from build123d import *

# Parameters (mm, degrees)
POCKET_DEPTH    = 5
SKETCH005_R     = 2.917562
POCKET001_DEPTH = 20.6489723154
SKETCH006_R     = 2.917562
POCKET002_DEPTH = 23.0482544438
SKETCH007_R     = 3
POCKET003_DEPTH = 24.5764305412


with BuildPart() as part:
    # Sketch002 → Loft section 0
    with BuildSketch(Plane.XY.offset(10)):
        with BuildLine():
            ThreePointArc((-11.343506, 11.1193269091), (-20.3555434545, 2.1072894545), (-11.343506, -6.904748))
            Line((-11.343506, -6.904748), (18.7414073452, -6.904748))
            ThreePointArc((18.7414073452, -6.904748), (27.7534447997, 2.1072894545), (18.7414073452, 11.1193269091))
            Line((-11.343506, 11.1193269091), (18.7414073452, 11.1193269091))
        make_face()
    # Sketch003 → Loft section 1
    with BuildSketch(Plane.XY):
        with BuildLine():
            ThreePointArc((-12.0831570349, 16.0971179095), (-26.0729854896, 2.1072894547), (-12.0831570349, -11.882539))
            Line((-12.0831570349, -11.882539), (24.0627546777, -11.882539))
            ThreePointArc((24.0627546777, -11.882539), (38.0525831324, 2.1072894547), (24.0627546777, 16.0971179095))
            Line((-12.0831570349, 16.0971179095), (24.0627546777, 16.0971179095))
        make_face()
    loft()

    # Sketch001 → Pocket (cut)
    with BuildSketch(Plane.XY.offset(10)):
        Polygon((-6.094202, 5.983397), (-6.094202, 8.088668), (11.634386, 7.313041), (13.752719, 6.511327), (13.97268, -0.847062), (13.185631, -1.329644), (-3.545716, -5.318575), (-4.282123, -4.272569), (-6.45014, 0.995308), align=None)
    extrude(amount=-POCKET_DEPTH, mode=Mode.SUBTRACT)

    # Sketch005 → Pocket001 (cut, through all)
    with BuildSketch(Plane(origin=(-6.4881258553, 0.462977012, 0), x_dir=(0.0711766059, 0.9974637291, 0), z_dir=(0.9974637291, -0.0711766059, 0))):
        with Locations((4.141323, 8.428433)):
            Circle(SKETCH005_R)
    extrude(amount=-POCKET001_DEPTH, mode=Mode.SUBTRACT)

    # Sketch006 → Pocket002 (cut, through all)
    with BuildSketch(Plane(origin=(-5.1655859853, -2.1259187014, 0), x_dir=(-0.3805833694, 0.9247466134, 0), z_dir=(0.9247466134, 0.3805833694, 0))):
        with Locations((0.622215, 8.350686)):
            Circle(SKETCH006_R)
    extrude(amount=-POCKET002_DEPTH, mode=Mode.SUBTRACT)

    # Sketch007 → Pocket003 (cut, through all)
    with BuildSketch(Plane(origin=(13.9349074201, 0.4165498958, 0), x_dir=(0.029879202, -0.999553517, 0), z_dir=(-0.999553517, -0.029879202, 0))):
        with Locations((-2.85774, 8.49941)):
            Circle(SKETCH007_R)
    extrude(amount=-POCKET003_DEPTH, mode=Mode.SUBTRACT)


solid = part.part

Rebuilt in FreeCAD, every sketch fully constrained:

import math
import FreeCAD as App
import Part
import Sketcher
Q = App.Units.Quantity

doc = App.newDocument("Part")
body = doc.addObject("PartDesign::Body", "Body")

# Sketch on XY plane
sketch1 = doc.addObject("Sketcher::SketchObject", "Sketch")
body.addObject(sketch1)
sketch1.AttachmentSupport = (doc.XY_Plane, [""])
sketch1.MapMode = "FlatFace"
sketch1.AttachmentOffset = App.Placement(App.Vector(0, 0, 10), App.Rotation())
sketch1.addGeometry([
    Part.ArcOfCircle(Part.Circle(App.Vector(-11.343506, 2.107289, 0), App.Vector(0, 0, 1), 9.012037), math.radians(90), math.radians(270)),
    Part.LineSegment(App.Vector(-11.343506, -6.904748, 0), App.Vector(18.741407, -6.904748, 0)),
    Part.ArcOfCircle(Part.Circle(App.Vector(18.741407, 2.107289, 0), App.Vector(0, 0, 1), 9.012037), math.radians(-90), math.radians(90)),
    Part.LineSegment(App.Vector(18.741407, 11.119327, 0), App.Vector(-11.343506, 11.119327, 0)),
], False)
sketch1.addConstraint([
    Sketcher.Constraint("Tangent", 0, 2, 1, 1),
    Sketcher.Constraint("Tangent", 1, 2, 2, 1),
    Sketcher.Constraint("Tangent", 2, 2, 3, 1),
    Sketcher.Constraint("Tangent", 3, 2, 0, 1),
    Sketcher.Constraint("Horizontal", 1),
    Sketcher.Constraint("Horizontal", 3),
    Sketcher.Constraint("Radius", 0, Q("9.012037 mm")),
    Sketcher.Constraint("DistanceX", 1, 1, 1, 2, Q("30.084913 mm")),
    Sketcher.Constraint("DistanceY", -1, 1, 0, 3, Q("2.107289 mm")),
    Sketcher.Constraint("DistanceX", 0, 3, -1, 1, Q("11.343506 mm")),
])

# Sketch on XY plane
sketch2 = doc.addObject("Sketcher::SketchObject", "Sketch001")
body.addObject(sketch2)
sketch2.AttachmentSupport = (doc.XY_Plane, [""])
sketch2.MapMode = "FlatFace"
sketch2.addGeometry([
    Part.ArcOfCircle(Part.Circle(App.Vector(-12.083157, 2.107289, 0), App.Vector(0, 0, 1), 13.989828), math.radians(90), math.radians(270)),
    Part.LineSegment(App.Vector(-12.083157, -11.882539, 0), App.Vector(24.062755, -11.882539, 0)),
    Part.ArcOfCircle(Part.Circle(App.Vector(24.062755, 2.107289, 0), App.Vector(0, 0, 1), 13.989828), math.radians(-90), math.radians(90)),
    Part.LineSegment(App.Vector(24.062755, 16.097118, 0), App.Vector(-12.083157, 16.097118, 0)),
], False)
sketch2.addConstraint([
    Sketcher.Constraint("Tangent", 0, 2, 1, 1),
    Sketcher.Constraint("Tangent", 1, 2, 2, 1),
    Sketcher.Constraint("Tangent", 2, 2, 3, 1),
    Sketcher.Constraint("Tangent", 3, 2, 0, 1),
    Sketcher.Constraint("Horizontal", 1),
    Sketcher.Constraint("Horizontal", 3),
    Sketcher.Constraint("Radius", 0, Q("13.989828 mm")),
    Sketcher.Constraint("DistanceX", 1, 1, 1, 2, Q("36.145912 mm")),
    Sketcher.Constraint("DistanceY", -1, 1, 0, 3, Q("2.107289 mm")),
    Sketcher.Constraint("DistanceX", 0, 3, -1, 1, Q("12.083157 mm")),
])

additiveloft = doc.addObject("PartDesign::AdditiveLoft", "AdditiveLoft")
body.addObject(additiveloft)
additiveloft.Profile = sketch1
additiveloft.Sections = [sketch2]

# Sketch on XY plane
sketch3 = doc.addObject("Sketcher::SketchObject", "Sketch002")
body.addObject(sketch3)
sketch3.AttachmentSupport = (doc.XY_Plane, [""])
sketch3.MapMode = "FlatFace"
sketch3.AttachmentOffset = App.Placement(App.Vector(0, 0, 10), App.Rotation())
sketch3.addGeometry([
    Part.LineSegment(App.Vector(-6.094202, 8.088668, 0), App.Vector(-6.094202, 5.983397, 0)),  # 0
    Part.LineSegment(App.Vector(-6.094202, 5.983397, 0), App.Vector(-6.45014, 0.995308, 0)),  # 1
    Part.LineSegment(App.Vector(-6.45014, 0.995308, 0), App.Vector(-4.282123, -4.272569, 0)),  # 2
    Part.LineSegment(App.Vector(-4.282123, -4.272569, 0), App.Vector(-3.545716, -5.318575, 0)),  # 3
    Part.LineSegment(App.Vector(-3.545716, -5.318575, 0), App.Vector(13.185631, -1.329644, 0)),  # 4
    Part.LineSegment(App.Vector(13.185631, -1.329644, 0), App.Vector(13.97268, -0.847062, 0)),  # 5
    Part.LineSegment(App.Vector(13.97268, -0.847062, 0), App.Vector(13.752719, 6.511327, 0)),  # 6
    Part.LineSegment(App.Vector(13.752719, 6.511327, 0), App.Vector(11.634386, 7.313041, 0)),  # 7
    Part.LineSegment(App.Vector(11.634386, 7.313041, 0), App.Vector(-6.094202, 8.088668, 0)),  # 8
], False)
sketch3.addConstraint([
    Sketcher.Constraint("Coincident", 0, 2, 1, 1),
    Sketcher.Constraint("Coincident", 1, 2, 2, 1),
    Sketcher.Constraint("Coincident", 2, 2, 3, 1),
    Sketcher.Constraint("Coincident", 3, 2, 4, 1),
    Sketcher.Constraint("Coincident", 4, 2, 5, 1),
    Sketcher.Constraint("Coincident", 5, 2, 6, 1),
    Sketcher.Constraint("Coincident", 6, 2, 7, 1),
    Sketcher.Constraint("Coincident", 7, 2, 8, 1),
    Sketcher.Constraint("Coincident", 8, 2, 0, 1),
    Sketcher.Constraint("Vertical", 0),
    Sketcher.Constraint("DistanceY", 0, 2, 0, 1, Q("2.105271 mm")),
    Sketcher.Constraint("Distance", 5, Q("0.923218 mm")),
    Sketcher.Constraint("DistanceX", 1, 2, -1, 1, Q("6.45014 mm")),
    Sketcher.Constraint("DistanceY", 2, 2, -1, 1, Q("4.272569 mm")),
    Sketcher.Constraint("DistanceX", -1, 1, 4, 2, Q("13.185631 mm")),
    Sketcher.Constraint("DistanceX", -1, 1, 5, 2, Q("13.97268 mm")),
    Sketcher.Constraint("DistanceY", 5, 2, -1, 1, Q("0.847062 mm")),
    Sketcher.Constraint("DistanceX", -1, 1, 6, 2, Q("13.752719 mm")),
    Sketcher.Constraint("DistanceY", -1, 1, 7, 2, Q("7.313041 mm")),
    Sketcher.Constraint("DistanceX", 1, 2, 0, 2, Q("0.355938 mm")),
    Sketcher.Constraint("DistanceY", 1, 2, 0, 2, Q("4.988089 mm")),
    Sketcher.Constraint("DistanceX", 0, 2, 2, 2, Q("1.812079 mm")),
    Sketcher.Constraint("DistanceY", 3, 2, 0, 2, Q("11.301972 mm")),
    Sketcher.Constraint("DistanceY", 3, 2, 4, 2, Q("3.988931 mm")),
    Sketcher.Constraint("DistanceY", 5, 2, 6, 2, Q("7.358389 mm")),
    Sketcher.Constraint("Distance", 3, Q("1.279228 mm")),
    Sketcher.Constraint("Distance", 7, Q("2.264968 mm")),
])
pocket1 = doc.addObject("PartDesign::Pocket", "Pocket")
body.addObject(pocket1)
pocket1.Profile = sketch3
pocket1.Length = 5

# Sketch on an angled plane
sketch4 = doc.addObject("Sketcher::SketchObject", "Sketch003")
body.addObject(sketch4)
sketch4.Placement = App.Placement(App.Vector(-6.488126, 0.462977, 0), App.Rotation(App.Vector(0.071176606, 0.997463729, 0), App.Vector(0, 0, 1), App.Vector(0.997463729, -0.071176606, 0), "ZXY"))
sketch4.addGeometry(Part.Circle(App.Vector(4.141323, 8.428433, 0), App.Vector(0, 0, 1), 2.917562), False)
sketch4.addConstraint([
    Sketcher.Constraint("Diameter", 0, Q("5.835124 mm")),
    Sketcher.Constraint("DistanceX", -1, 1, 0, 3, Q("4.141323 mm")),
    Sketcher.Constraint("DistanceY", -1, 1, 0, 3, Q("8.428433 mm")),
])
pocket2 = doc.addObject("PartDesign::Pocket", "Pocket001")
body.addObject(pocket2)
pocket2.Profile = sketch4
pocket2.Type = "ThroughAll"

# Sketch on an angled plane
sketch5 = doc.addObject("Sketcher::SketchObject", "Sketch004")
body.addObject(sketch5)
sketch5.Placement = App.Placement(App.Vector(-5.165586, -2.125919, 0), App.Rotation(App.Vector(-0.380583369, 0.924746613, 0), App.Vector(0, 0, 0.999999999), App.Vector(0.924746613, 0.380583369, 0), "ZXY"))
sketch5.addGeometry(Part.Circle(App.Vector(0.622215, 8.350686, 0), App.Vector(0, 0, 1), 2.917562), False)
sketch5.addConstraint([
    Sketcher.Constraint("Diameter", 0, Q("5.835124 mm")),
    Sketcher.Constraint("DistanceX", -1, 1, 0, 3, Q("0.622215 mm")),
    Sketcher.Constraint("DistanceY", -1, 1, 0, 3, Q("8.350686 mm")),
])
pocket3 = doc.addObject("PartDesign::Pocket", "Pocket002")
body.addObject(pocket3)
pocket3.Profile = sketch5
pocket3.Type = "ThroughAll"

# Sketch on an angled plane
sketch6 = doc.addObject("Sketcher::SketchObject", "Sketch005")
body.addObject(sketch6)
sketch6.Placement = App.Placement(App.Vector(13.934907, 0.41655, 0), App.Rotation(App.Vector(0.029879202, -0.999553517, 0), App.Vector(0, 0, 1), App.Vector(-0.999553517, -0.029879202, 0), "ZXY"))
sketch6.addGeometry(Part.Circle(App.Vector(-2.85774, 8.49941, 0), App.Vector(0, 0, 1), 3), False)
sketch6.addConstraint([
    Sketcher.Constraint("Diameter", 0, Q("6 mm")),
    Sketcher.Constraint("DistanceX", 0, 3, -1, 1, Q("2.85774 mm")),
    Sketcher.Constraint("DistanceY", -1, 1, 0, 3, Q("8.49941 mm")),
])
pocket4 = doc.addObject("PartDesign::Pocket", "Pocket003")
body.addObject(pocket4)
pocket4.Profile = sketch6
pocket4.Type = "ThroughAll"

doc.recompute()
